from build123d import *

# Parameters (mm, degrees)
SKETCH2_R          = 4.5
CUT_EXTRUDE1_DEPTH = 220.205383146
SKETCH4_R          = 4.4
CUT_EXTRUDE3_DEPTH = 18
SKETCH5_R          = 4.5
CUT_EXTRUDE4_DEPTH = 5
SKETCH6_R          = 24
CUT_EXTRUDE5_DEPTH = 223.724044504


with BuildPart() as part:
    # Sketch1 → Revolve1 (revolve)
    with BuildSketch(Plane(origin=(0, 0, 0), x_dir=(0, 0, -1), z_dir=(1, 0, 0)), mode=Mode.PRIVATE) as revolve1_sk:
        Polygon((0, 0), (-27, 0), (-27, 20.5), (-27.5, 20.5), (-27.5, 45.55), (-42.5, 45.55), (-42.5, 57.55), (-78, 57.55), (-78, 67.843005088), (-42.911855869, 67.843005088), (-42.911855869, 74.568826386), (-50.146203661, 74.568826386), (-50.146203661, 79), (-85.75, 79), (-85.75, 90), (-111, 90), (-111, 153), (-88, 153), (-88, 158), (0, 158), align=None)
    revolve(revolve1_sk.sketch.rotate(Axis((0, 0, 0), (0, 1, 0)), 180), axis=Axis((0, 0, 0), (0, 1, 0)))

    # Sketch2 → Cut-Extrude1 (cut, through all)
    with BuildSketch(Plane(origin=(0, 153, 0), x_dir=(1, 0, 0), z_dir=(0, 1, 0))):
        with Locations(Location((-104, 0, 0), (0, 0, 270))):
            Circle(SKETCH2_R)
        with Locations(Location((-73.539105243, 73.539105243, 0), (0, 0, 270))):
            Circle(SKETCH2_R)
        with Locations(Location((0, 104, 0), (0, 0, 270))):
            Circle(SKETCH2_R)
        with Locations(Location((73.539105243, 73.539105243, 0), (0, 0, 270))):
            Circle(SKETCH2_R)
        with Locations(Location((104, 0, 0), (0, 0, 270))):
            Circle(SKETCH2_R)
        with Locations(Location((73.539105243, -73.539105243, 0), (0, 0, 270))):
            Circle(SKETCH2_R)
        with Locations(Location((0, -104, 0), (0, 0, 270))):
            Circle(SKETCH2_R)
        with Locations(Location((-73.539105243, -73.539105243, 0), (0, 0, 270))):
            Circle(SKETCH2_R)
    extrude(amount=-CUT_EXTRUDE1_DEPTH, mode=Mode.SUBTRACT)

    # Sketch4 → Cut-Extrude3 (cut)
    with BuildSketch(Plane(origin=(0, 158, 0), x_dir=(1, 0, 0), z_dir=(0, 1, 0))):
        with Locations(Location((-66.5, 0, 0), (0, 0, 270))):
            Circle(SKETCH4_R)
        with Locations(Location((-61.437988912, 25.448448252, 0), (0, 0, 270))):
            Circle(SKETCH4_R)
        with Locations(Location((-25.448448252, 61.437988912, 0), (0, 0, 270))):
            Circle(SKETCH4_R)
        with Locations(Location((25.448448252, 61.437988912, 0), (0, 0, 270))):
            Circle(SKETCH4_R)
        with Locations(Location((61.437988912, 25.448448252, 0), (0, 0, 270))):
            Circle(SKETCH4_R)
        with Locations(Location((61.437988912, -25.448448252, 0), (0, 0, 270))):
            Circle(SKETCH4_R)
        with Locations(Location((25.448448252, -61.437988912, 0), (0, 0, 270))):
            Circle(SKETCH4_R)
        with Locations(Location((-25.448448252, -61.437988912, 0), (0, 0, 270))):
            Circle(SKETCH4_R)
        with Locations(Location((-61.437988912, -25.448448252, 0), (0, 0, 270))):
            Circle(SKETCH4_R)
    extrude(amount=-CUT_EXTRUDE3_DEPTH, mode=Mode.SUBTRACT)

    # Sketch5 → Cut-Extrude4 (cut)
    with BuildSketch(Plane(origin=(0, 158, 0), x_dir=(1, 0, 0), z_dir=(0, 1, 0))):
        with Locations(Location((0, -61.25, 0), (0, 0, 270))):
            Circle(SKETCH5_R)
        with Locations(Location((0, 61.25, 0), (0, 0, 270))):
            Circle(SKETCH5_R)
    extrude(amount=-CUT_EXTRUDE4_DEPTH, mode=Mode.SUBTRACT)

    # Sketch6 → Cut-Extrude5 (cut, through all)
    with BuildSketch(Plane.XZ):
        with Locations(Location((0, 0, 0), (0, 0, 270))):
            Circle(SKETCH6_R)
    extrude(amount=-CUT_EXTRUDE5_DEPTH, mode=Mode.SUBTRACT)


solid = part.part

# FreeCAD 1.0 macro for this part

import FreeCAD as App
import Part
import Sketcher

V = App.Vector

doc = App.newDocument("Part")
params = doc.addObject("Spreadsheet::Sheet", "Params")
for row, (alias, value) in enumerate([
    ("sketch1_width", "158 mm"),
    ("sketch1_width2", "5 mm"),
    ("sketch1_width3", "63 mm"),
    ("sketch1_width4", "11 mm"),
    ("sketch1_width5", "12 mm"),
    ("revolution_angle", "360 deg"),
    ("sketch2_diameter", "9 mm"),
    ("sketch3_diameter", "8.8 mm"),
    ("pocket2_length", "18 mm"),
    ("sketch4_diameter", "9 mm"),
    ("pocket3_length", "5 mm"),
    ("sketch5_diameter", "48 mm"),
], start=1):
    params.set(f"A{row}", alias)
    params.set(f"B{row}", "=" + value)
    params.setAlias(f"B{row}", alias)

body = doc.addObject("PartDesign::Body", "Body")

# Sketch on YZ plane
sketch1 = doc.addObject("Sketcher::SketchObject", "Sketch")
body.addObject(sketch1)
sketch1.AttachmentSupport = (doc.YZ_Plane, [""])
sketch1.MapMode = "FlatFace"
sketch1.addGeometry([
    Part.LineSegment(V(0, 27, 0), V(0, 0, 0)),  # 0
    Part.LineSegment(V(0, 0, 0), V(158, 0, 0)),  # 1
    Part.LineSegment(V(158, 0, 0), V(158, 88, 0)),  # 2
    Part.LineSegment(V(158, 88, 0), V(153, 88, 0)),  # 3
    Part.LineSegment(V(153, 88, 0), V(153, 111, 0)),  # 4
    Part.LineSegment(V(153, 111, 0), V(90, 111, 0)),  # 5
    Part.LineSegment(V(90, 111, 0), V(90, 85.8, 0)),  # 6
    Part.LineSegment(V(90, 85.8, 0), V(79, 85.8, 0)),  # 7
    Part.LineSegment(V(79, 85.8, 0), V(79, 50.1, 0)),  # 8
    Part.LineSegment(V(79, 50.1, 0), V(74.6, 50.1, 0)),  # 9
    Part.LineSegment(V(74.6, 50.1, 0), V(74.6, 42.9, 0)),  # 10
    Part.LineSegment(V(74.6, 42.9, 0), V(67.8, 42.9, 0)),  # 11
    Part.LineSegment(V(67.8, 42.9, 0), V(67.8, 78, 0)),  # 12
    Part.LineSegment(V(67.8, 78, 0), V(57.5, 78, 0)),  # 13
    Part.LineSegment(V(57.5, 78, 0), V(57.5, 42.5, 0)),  # 14
    Part.LineSegment(V(57.5, 42.5, 0), V(45.5, 42.5, 0)),  # 15
    Part.LineSegment(V(45.5, 42.5, 0), V(45.5, 27.5, 0)),  # 16
    Part.LineSegment(V(45.5, 27.5, 0), V(20.5, 27.5, 0)),  # 17
    Part.LineSegment(V(20.5, 27.5, 0), V(20.5, 27, 0)),  # 18
    Part.LineSegment(V(20.5, 27, 0), V(0, 27, 0)),  # 19
], False)
sketch1.addConstraint([
    Sketcher.Constraint("Coincident", 0, 2, 1, 1),
    Sketcher.Constraint("Coincident", 1, 2, 2, 1),
    Sketcher.Constraint("Coincident", 2, 2, 3, 1),
    Sketcher.Constraint("Coincident", 3, 2, 4, 1),
    Sketcher.Constraint("Coincident", 4, 2, 5, 1),
    Sketcher.Constraint("Coincident", 5, 2, 6, 1),
    Sketcher.Constraint("Coincident", 6, 2, 7, 1),
    Sketcher.Constraint("Coincident", 7, 2, 8, 1),
    Sketcher.Constraint("Coincident", 8, 2, 9, 1),
    Sketcher.Constraint("Coincident", 9, 2, 10, 1),
    Sketcher.Constraint("Coincident", 10, 2, 11, 1),
    Sketcher.Constraint("Coincident", 11, 2, 12, 1),
    Sketcher.Constraint("Coincident", 12, 2, 13, 1),
    Sketcher.Constraint("Coincident", 13, 2, 14, 1),
    Sketcher.Constraint("Coincident", 14, 2, 15, 1),
    Sketcher.Constraint("Coincident", 15, 2, 16, 1),
    Sketcher.Constraint("Coincident", 16, 2, 17, 1),
    Sketcher.Constraint("Coincident", 17, 2, 18, 1),
    Sketcher.Constraint("Coincident", 18, 2, 19, 1),
    Sketcher.Constraint("Coincident", 19, 2, 0, 1),
    Sketcher.Constraint("Vertical", 0),
    Sketcher.Constraint("Horizontal", 1),
    Sketcher.Constraint("Vertical", 2),
    Sketcher.Constraint("Horizontal", 3),
    Sketcher.Constraint("Vertical", 4),
    Sketcher.Constraint("Horizontal", 5),
    Sketcher.Constraint("Vertical", 6),
    Sketcher.Constraint("Horizontal", 7),
    Sketcher.Constraint("Vertical", 8),
    Sketcher.Constraint("Horizontal", 9),
    Sketcher.Constraint("Vertical", 10),
    Sketcher.Constraint("Horizontal", 11),
    Sketcher.Constraint("Vertical", 12),
    Sketcher.Constraint("Horizontal", 13),
    Sketcher.Constraint("Vertical", 14),
    Sketcher.Constraint("Horizontal", 15),
    Sketcher.Constraint("Vertical", 16),
    Sketcher.Constraint("Horizontal", 17),
    Sketcher.Constraint("Vertical", 18),
    Sketcher.Constraint("Horizontal", 19),
    Sketcher.Constraint("Coincident", 0, 2, -1, 1),
    Sketcher.Constraint("DistanceX", 1, 1, 1, 2, 158.0),
    Sketcher.Constraint("DistanceX", 3, 2, 3, 1, 5.0),
    Sketcher.Constraint("DistanceX", 5, 2, 5, 1, 63.0),
    Sketcher.Constraint("DistanceX", 7, 2, 7, 1, 11.0),
    Sketcher.Constraint("DistanceX", 15, 2, 15, 1, 12.0),
    Sketcher.Constraint("DistanceY", 0, 2, 0, 1, 27.0),
    Sketcher.Constraint("DistanceY", 2, 1, 2, 2, 88.0),
    Sketcher.Constraint("DistanceY", 4, 1, 4, 2, 23.0),
    Sketcher.Constraint("DistanceY", 16, 2, 16, 1, 15.0),
    Sketcher.Constraint("DistanceX", 19, 2, 19, 1, 20.5),
    Sketcher.Constraint("DistanceY", 14, 2, 14, 1, 35.5),
    Sketcher.Constraint("DistanceY", 18, 2, 18, 1, 0.5),
    Sketcher.Constraint("DistanceX", 17, 2, 17, 1, 25.05),
    Sketcher.Constraint("DistanceY", 6, 2, 6, 1, 25.25),
    Sketcher.Constraint("DistanceX", 11, 2, 11, 1, 6.725821),
    Sketcher.Constraint("DistanceX", 9, 2, 9, 1, 4.431174),
    Sketcher.Constraint("DistanceY", 8, 2, 8, 1, 35.603796),
    Sketcher.Constraint("DistanceY", 10, 2, 10, 1, 7.234348),
])
sketch1.setExpression("Constraints[41]", "Params.sketch1_width")
sketch1.setExpression("Constraints[42]", "Params.sketch1_width2")
sketch1.setExpression("Constraints[43]", "Params.sketch1_width3")
sketch1.setExpression("Constraints[44]", "Params.sketch1_width4")
sketch1.setExpression("Constraints[45]", "Params.sketch1_width5")
revolution = doc.addObject("PartDesign::Revolution", "Revolution")
body.addObject(revolution)
revolution.Profile = sketch1
revolution.ReferenceAxis = (sketch1, ["H_Axis"])
revolution.setExpression("Angle", "Params.revolution_angle")

# Sketch on XZ plane
sketch2 = doc.addObject("Sketcher::SketchObject", "Sketch001")
body.addObject(sketch2)
sketch2.AttachmentSupport = (doc.XZ_Plane, [""])
sketch2.MapMode = "FlatFace"
sketch2.AttachmentOffset = App.Placement(V(0, 0, -153), App.Rotation())
sketch2.addGeometry([
    Part.Circle(V(-104, 0, 0), V(0, 0, 1), 4.5),  # 0
    Part.Circle(V(-73.5, -73.5, 0), V(0, 0, 1), 4.5),  # 1
    Part.Circle(V(0, -104, 0), V(0, 0, 1), 4.5),  # 2
    Part.Circle(V(73.5, -73.5, 0), V(0, 0, 1), 4.5),  # 3
    Part.Circle(V(104, 0, 0), V(0, 0, 1), 4.5),  # 4
    Part.Circle(V(73.5, 73.5, 0), V(0, 0, 1), 4.5),  # 5
    Part.Circle(V(0, 104, 0), V(0, 0, 1), 4.5),  # 6
    Part.Circle(V(-73.5, 73.5, 0), V(0, 0, 1), 4.5),  # 7
], False)
sketch2.addConstraint([
    Sketcher.Constraint("Equal", 0, 1),
    Sketcher.Constraint("Equal", 1, 2),
    Sketcher.Constraint("Equal", 2, 3),
    Sketcher.Constraint("Equal", 3, 4),
    Sketcher.Constraint("Equal", 4, 5),
    Sketcher.Constraint("Equal", 5, 6),
    Sketcher.Constraint("Equal", 6, 7),
    Sketcher.Constraint("Symmetric", 0, 3, 4, 3, -1, 1),
    Sketcher.Constraint("Symmetric", 1, 3, 5, 3, -1, 1),
    Sketcher.Constraint("Symmetric", 2, 3, 6, 3, -1, 1),
    Sketcher.Constraint("Symmetric", 3, 3, 7, 3, -1, 1),
    Sketcher.Constraint("Symmetric", 1, 3, 3, 3, -2),
    Sketcher.Constraint("PointOnObject", 0, 3, -1),
    Sketcher.Constraint("PointOnObject", 2, 3, -2),
    Sketcher.Constraint("Diameter", 0, 9.0),
    Sketcher.Constraint("DistanceX", 0, 3, -1, 1, 104.0),
    Sketcher.Constraint("DistanceY", 2, 3, -1, 1, 104.0),
    Sketcher.Constraint("DistanceX", 1, 3, 3, 3, 147.07821),
    Sketcher.Constraint("DistanceY", 3, 3, 5, 3, 147.07821),
])
sketch2.setExpression("Constraints[14]", "Params.sketch2_diameter")
pocket1 = doc.addObject("PartDesign::Pocket", "Pocket")
body.addObject(pocket1)
pocket1.Profile = sketch2
pocket1.Type = "ThroughAll"
pocket1.Reversed = True

# Sketch on XZ plane
sketch3 = doc.addObject("Sketcher::SketchObject", "Sketch002")
body.addObject(sketch3)
sketch3.AttachmentSupport = (doc.XZ_Plane, [""])
sketch3.MapMode = "FlatFace"
sketch3.AttachmentOffset = App.Placement(V(0, 0, -158), App.Rotation())
sketch3.addGeometry([
    Part.Circle(V(-66.5, 0, 0), V(0, 0, 1), 4.4),  # 0
    Part.Circle(V(-61.4, -25.4, 0), V(0, 0, 1), 4.4),  # 1
    Part.Circle(V(-25.4, -61.4, 0), V(0, 0, 1), 4.4),  # 2
    Part.Circle(V(25.4, -61.4, 0), V(0, 0, 1), 4.4),  # 3
    Part.Circle(V(61.4, -25.4, 0), V(0, 0, 1), 4.4),  # 4
    Part.Circle(V(61.4, 25.4, 0), V(0, 0, 1), 4.4),  # 5
    Part.Circle(V(25.4, 61.4, 0), V(0, 0, 1), 4.4),  # 6
    Part.Circle(V(-25.4, 61.4, 0), V(0, 0, 1), 4.4),  # 7
    Part.Circle(V(-61.4, 25.4, 0), V(0, 0, 1), 4.4),  # 8
], False)
sketch3.addConstraint([
    Sketcher.Constraint("Equal", 0, 1),
    Sketcher.Constraint("Equal", 1, 2),
    Sketcher.Constraint("Equal", 2, 3),
    Sketcher.Constraint("Equal", 3, 4),
    Sketcher.Constraint("Equal", 4, 5),
    Sketcher.Constraint("Equal", 5, 6),
    Sketcher.Constraint("Equal", 6, 7),
    Sketcher.Constraint("Equal", 7, 8),
    Sketcher.Constraint("Symmetric", 1, 3, 5, 3, -1, 1),
    Sketcher.Constraint("Symmetric", 2, 3, 6, 3, -1, 1),
    Sketcher.Constraint("Symmetric", 3, 3, 7, 3, -1, 1),
    Sketcher.Constraint("Symmetric", 4, 3, 8, 3, -1, 1),
    Sketcher.Constraint("Symmetric", 2, 3, 3, 3, -2),
    Sketcher.Constraint("Symmetric", 1, 3, 4, 3, -2),
    Sketcher.Constraint("PointOnObject", 0, 3, -1),
    Sketcher.Constraint("Diameter", 0, 8.8),
    Sketcher.Constraint("DistanceX", 0, 3, -1, 1, 66.5),
    Sketcher.Constraint("DistanceX", 1, 3, -1, 1, 61.437989),
    Sketcher.Constraint("DistanceY", 1, 3, -1, 1, 25.448448),
    Sketcher.Constraint("DistanceX", 2, 3, -1, 1, 25.448448),
    Sketcher.Constraint("DistanceY", 2, 3, -1, 1, 61.437989),
])
sketch3.setExpression("Constraints[15]", "Params.sketch3_diameter")
pocket2 = doc.addObject("PartDesign::Pocket", "Pocket001")
body.addObject(pocket2)
pocket2.Profile = sketch3
pocket2.setExpression("Length", "Params.pocket2_length")
pocket2.Reversed = True

# Sketch on XZ plane
sketch4 = doc.addObject("Sketcher::SketchObject", "Sketch003")
body.addObject(sketch4)
sketch4.AttachmentSupport = (doc.XZ_Plane, [""])
sketch4.MapMode = "FlatFace"
sketch4.AttachmentOffset = App.Placement(V(0, 0, -158), App.Rotation())
sketch4.addGeometry([
    Part.Circle(V(0, 61.2, 0), V(0, 0, 1), 4.5),
    Part.Circle(V(0, -61.2, 0), V(0, 0, 1), 4.5),
], False)
sketch4.addConstraint([
    Sketcher.Constraint("Equal", 0, 1),
    Sketcher.Constraint("Symmetric", 0, 3, 1, 3, -1, 1),
    Sketcher.Constraint("PointOnObject", 0, 3, -2),
    Sketcher.Constraint("Diameter", 0, 9.0),
    Sketcher.Constraint("DistanceY", 1, 3, 0, 3, 122.5),
])
sketch4.setExpression("Constraints[3]", "Params.sketch4_diameter")
pocket3 = doc.addObject("PartDesign::Pocket", "Pocket002")
body.addObject(pocket3)
pocket3.Profile = sketch4
pocket3.setExpression("Length", "Params.pocket3_length")
pocket3.Reversed = True

# Sketch on XZ plane
sketch5 = doc.addObject("Sketcher::SketchObject", "Sketch004")
body.addObject(sketch5)
sketch5.AttachmentSupport = (doc.XZ_Plane, [""])
sketch5.MapMode = "FlatFace"
sketch5.addGeometry(Part.Circle(V(0, 0, 0), V(0, 0, 1), 24), False)
sketch5.addConstraint([
    Sketcher.Constraint("Coincident", 0, 3, -1, 1),
    Sketcher.Constraint("Diameter", 0, 48.0),
])
sketch5.setExpression("Constraints[1]", "Params.sketch5_diameter")
pocket4 = doc.addObject("PartDesign::Pocket", "Pocket003")
body.addObject(pocket4)
pocket4.Profile = sketch5
pocket4.Type = "ThroughAll"

doc.recompute()
